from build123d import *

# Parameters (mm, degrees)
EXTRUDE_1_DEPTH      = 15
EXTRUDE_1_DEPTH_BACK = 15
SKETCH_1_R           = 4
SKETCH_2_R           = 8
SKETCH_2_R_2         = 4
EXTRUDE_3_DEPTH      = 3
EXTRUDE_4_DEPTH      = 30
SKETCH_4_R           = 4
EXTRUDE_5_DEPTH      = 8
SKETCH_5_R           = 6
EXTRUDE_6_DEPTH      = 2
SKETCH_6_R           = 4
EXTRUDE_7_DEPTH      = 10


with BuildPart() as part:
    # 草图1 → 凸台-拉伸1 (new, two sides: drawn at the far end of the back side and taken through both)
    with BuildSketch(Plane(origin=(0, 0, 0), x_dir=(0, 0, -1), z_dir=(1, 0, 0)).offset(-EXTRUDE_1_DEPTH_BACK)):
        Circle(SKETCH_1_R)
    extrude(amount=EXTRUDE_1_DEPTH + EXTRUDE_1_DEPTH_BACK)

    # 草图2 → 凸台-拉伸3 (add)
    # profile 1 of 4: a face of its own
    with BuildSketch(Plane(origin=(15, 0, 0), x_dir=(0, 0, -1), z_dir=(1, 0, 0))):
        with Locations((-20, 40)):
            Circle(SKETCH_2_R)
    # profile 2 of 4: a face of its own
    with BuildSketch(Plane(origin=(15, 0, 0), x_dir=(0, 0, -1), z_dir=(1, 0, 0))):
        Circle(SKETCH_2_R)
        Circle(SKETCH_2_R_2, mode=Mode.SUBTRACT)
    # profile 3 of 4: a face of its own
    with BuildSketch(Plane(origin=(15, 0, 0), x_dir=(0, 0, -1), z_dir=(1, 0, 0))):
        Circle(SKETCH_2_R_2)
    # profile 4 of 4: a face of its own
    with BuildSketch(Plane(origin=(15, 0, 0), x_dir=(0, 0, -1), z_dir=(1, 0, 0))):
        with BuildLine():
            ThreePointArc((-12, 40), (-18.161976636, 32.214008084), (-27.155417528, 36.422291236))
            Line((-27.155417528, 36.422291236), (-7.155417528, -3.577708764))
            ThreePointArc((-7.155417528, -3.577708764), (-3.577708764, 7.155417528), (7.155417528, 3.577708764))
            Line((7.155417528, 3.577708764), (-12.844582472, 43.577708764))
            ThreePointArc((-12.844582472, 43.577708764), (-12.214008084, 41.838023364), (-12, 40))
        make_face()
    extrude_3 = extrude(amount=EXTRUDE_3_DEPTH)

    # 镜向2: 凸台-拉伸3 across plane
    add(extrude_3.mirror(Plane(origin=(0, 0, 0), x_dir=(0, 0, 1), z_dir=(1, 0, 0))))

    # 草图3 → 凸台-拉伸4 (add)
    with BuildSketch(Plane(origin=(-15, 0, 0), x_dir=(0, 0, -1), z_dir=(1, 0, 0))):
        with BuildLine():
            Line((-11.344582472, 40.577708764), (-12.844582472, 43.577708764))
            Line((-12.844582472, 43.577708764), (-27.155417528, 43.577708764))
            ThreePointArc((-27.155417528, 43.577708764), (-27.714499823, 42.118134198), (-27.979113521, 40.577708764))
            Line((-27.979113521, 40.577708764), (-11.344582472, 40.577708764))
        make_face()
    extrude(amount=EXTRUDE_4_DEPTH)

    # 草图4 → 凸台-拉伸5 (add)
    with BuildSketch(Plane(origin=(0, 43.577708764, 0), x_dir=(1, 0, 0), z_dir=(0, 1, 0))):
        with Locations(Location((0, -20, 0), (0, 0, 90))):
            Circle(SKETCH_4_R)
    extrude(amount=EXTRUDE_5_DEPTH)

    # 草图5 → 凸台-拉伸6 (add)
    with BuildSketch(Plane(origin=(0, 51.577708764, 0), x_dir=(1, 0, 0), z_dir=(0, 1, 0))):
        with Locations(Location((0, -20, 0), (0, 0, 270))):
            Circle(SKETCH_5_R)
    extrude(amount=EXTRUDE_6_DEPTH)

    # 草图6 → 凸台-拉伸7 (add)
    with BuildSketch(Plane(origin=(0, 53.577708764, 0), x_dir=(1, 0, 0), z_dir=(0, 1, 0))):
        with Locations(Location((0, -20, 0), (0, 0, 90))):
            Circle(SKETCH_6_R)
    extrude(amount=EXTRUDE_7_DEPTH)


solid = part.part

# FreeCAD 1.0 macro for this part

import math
import FreeCAD as App
import Part
import Sketcher

V = App.Vector
Q = App.Units.Quantity

doc = App.newDocument("Part")
body = doc.addObject("PartDesign::Body", "Body")

# Sketch on YZ plane
sketch1 = body.newObject("Sketcher::SketchObject", "Sketch")
sketch1.AttachmentSupport = (doc.getObject("YZ_Plane"), [""])
sketch1.MapMode = "FlatFace"
sketch1.addGeometry(Part.Circle(V(0, 0, 0), V(0, 0, 1), 4), False)
sketch1.addConstraint([
    Sketcher.Constraint("Coincident", 0, 3, -1, 1),
    Sketcher.Constraint("Diameter", 0, Q("8 mm")),
])
pad1 = body.newObject("PartDesign::Pad", "Pad")
pad1.Profile = sketch1
pad1.Type = "TwoLengths"
pad1.Length = 15
pad1.Length2 = 15

# Sketch on YZ plane
sketch2 = body.newObject("Sketcher::SketchObject", "Sketch001")
sketch2.AttachmentSupport = (doc.getObject("YZ_Plane"), [""])
sketch2.MapMode = "FlatFace"
sketch2.AttachmentOffset = App.Placement(V(0, 0, 15), App.Rotation())
sketch2.addGeometry([
    Part.ArcOfCircle(Part.Circle(V(40, 20, 0), V(0, 0, 1), 8), math.radians(-63.434949), math.radians(116.565051)),
    Part.LineSegment(V(36.422291, 27.155418, 0), V(-3.577709, 7.155418, 0)),
    Part.ArcOfCircle(Part.Circle(V(0, 0, 0), V(0, 0, 1), 8), math.radians(116.565051), math.radians(296.565051)),
    Part.LineSegment(V(3.577709, -7.155418, 0), V(43.577709, 12.844582, 0)),
], False)
sketch2.addConstraint([
    Sketcher.Constraint("Tangent", 0, 2, 1, 1),
    Sketcher.Constraint("Tangent", 1, 2, 2, 1),
    Sketcher.Constraint("Tangent", 2, 2, 3, 1),
    Sketcher.Constraint("Tangent", 3, 2, 0, 1),
    Sketcher.Constraint("Coincident", 2, 3, -1, 1),
    Sketcher.Constraint("Equal", 0, 2),
    Sketcher.Constraint("Radius", 0, Q("8 mm")),
    Sketcher.Constraint("DistanceX", -1, 1, 0, 3, Q("40 mm")),
    Sketcher.Constraint("DistanceY", -1, 1, 0, 3, Q("20 mm")),
])
pad2 = body.newObject("PartDesign::Pad", "Pad001")
pad2.Profile = sketch2
pad2.Length = 3
doc.recompute()

mirrored = body.newObject("PartDesign::Mirrored", "Mirrored")
mirrored.Originals = [pad2]
mirrored.MirrorPlane = (doc.getObject("YZ_Plane"), [""])
body.Tip = mirrored

# Sketch on YZ plane
sketch3 = body.newObject("Sketcher::SketchObject", "Sketch002")
sketch3.AttachmentSupport = (doc.getObject("YZ_Plane"), [""])
sketch3.MapMode = "FlatFace"
sketch3.AttachmentOffset = App.Placement(V(0, 0, -15), App.Rotation())
sketch3.addGeometry([
    Part.LineSegment(V(40.577709, 11.344582, 0), V(43.577709, 12.844582, 0)),
    Part.LineSegment(V(43.577709, 12.844582, 0), V(43.577709, 27.155418, 0)),
    Part.ArcOfCircle(Part.Circle(V(40, 20, 0), V(0, 0, 1), 8), math.radians(63.434949), math.radians(85.858861)),
    Part.LineSegment(V(40.577709, 27.979114, 0), V(40.577709, 11.344582, 0)),
], False)
sketch3.addConstraint([
    Sketcher.Constraint("Coincident", 0, 2, 1, 1),
    Sketcher.Constraint("Coincident", 1, 2, 2, 1),
    Sketcher.Constraint("Coincident", 2, 2, 3, 1),
    Sketcher.Constraint("Coincident", 3, 2, 0, 1),
    Sketcher.Constraint("Vertical", 1),
    Sketcher.Constraint("Vertical", 3),
    Sketcher.Constraint("Radius", 2, Q("8 mm")),
    Sketcher.Constraint("DistanceX", -1, 1, 2, 3, Q("40 mm")),
    Sketcher.Constraint("DistanceY", -1, 1, 2, 3, Q("20 mm")),
    Sketcher.Constraint("DistanceX", 2, 2, 1, 2, Q("3 mm")),
    Sketcher.Constraint("DistanceY", 3, 2, 0, 2, Q("1.5 mm")),
    Sketcher.Constraint("DistanceY", 3, 2, 3, 1, Q("16.634531 mm")),
    Sketcher.Constraint("DistanceY", 1, 1, 1, 2, Q("14.310835 mm")),
])
pad3 = body.newObject("PartDesign::Pad", "Pad002")
pad3.Profile = sketch3
pad3.Length = 30

# Sketch on XZ plane
sketch4 = body.newObject("Sketcher::SketchObject", "Sketch003")
sketch4.AttachmentSupport = (doc.getObject("XZ_Plane"), [""])
sketch4.MapMode = "FlatFace"
sketch4.AttachmentOffset = App.Placement(V(0, 0, -43.577709), App.Rotation())
sketch4.addGeometry(Part.Circle(V(0, 20, 0), V(0, 0, 1), 4), False)
sketch4.addConstraint([
    Sketcher.Constraint("PointOnObject", 0, 3, -2),
    Sketcher.Constraint("Diameter", 0, Q("8 mm")),
    Sketcher.Constraint("DistanceY", -1, 1, 0, 3, Q("20 mm")),
])
pad4 = body.newObject("PartDesign::Pad", "Pad003")
pad4.Profile = sketch4
pad4.Length = 8
pad4.Reversed = True

# Sketch on XZ plane
sketch5 = body.newObject("Sketcher::SketchObject", "Sketch004")
sketch5.AttachmentSupport = (doc.getObject("XZ_Plane"), [""])
sketch5.MapMode = "FlatFace"
sketch5.AttachmentOffset = App.Placement(V(0, 0, -51.577709), App.Rotation())
sketch5.addGeometry(Part.Circle(V(0, 20, 0), V(0, 0, 1), 6), False)
sketch5.addConstraint([
    Sketcher.Constraint("PointOnObject", 0, 3, -2),
    Sketcher.Constraint("Diameter", 0, Q("12 mm")),
    Sketcher.Constraint("DistanceY", -1, 1, 0, 3, Q("20 mm")),
])
pad5 = body.newObject("PartDesign::Pad", "Pad004")
pad5.Profile = sketch5
pad5.Length = 2
pad5.Reversed = True

# Sketch on XZ plane
sketch6 = body.newObject("Sketcher::SketchObject", "Sketch005")
sketch6.AttachmentSupport = (doc.getObject("XZ_Plane"), [""])
sketch6.MapMode = "FlatFace"
sketch6.AttachmentOffset = App.Placement(V(0, 0, -53.577709), App.Rotation())
sketch6.addGeometry(Part.Circle(V(0, 20, 0), V(0, 0, 1), 4), False)
sketch6.addConstraint([
    Sketcher.Constraint("PointOnObject", 0, 3, -2),
    Sketcher.Constraint("Diameter", 0, Q("8 mm")),
    Sketcher.Constraint("DistanceY", -1, 1, 0, 3, Q("20 mm")),
])
pad6 = body.newObject("PartDesign::Pad", "Pad005")
pad6.Profile = sketch6
pad6.Length = 10
pad6.Reversed = True

doc.recompute()
